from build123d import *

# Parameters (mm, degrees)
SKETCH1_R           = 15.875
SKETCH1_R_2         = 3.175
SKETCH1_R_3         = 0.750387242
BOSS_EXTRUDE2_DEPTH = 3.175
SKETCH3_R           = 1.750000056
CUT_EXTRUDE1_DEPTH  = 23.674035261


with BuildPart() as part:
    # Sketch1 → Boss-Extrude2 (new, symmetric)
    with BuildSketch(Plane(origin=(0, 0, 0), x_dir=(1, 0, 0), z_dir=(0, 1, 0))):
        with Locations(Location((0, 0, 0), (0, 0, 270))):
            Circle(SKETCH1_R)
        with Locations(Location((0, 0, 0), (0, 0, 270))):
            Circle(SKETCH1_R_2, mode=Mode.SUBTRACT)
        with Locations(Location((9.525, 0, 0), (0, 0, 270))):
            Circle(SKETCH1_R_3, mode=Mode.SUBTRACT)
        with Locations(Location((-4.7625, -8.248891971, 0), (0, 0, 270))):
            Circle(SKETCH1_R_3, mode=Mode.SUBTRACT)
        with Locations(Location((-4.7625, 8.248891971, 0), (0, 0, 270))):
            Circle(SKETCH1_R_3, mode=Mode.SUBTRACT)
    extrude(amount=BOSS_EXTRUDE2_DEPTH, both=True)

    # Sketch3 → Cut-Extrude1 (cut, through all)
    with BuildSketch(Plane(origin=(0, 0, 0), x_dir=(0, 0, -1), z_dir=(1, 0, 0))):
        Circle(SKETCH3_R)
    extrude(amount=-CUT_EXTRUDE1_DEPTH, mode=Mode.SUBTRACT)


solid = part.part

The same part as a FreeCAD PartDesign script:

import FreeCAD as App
import Part
import Sketcher
from FreeCAD import Vector
Q = App.Units.Quantity

doc = App.newDocument("Part")
body = doc.addObject("PartDesign::Body", "Body")

# Sketch on XZ plane
sketch1 = doc.addObject("Sketcher::SketchObject", "Sketch")
body.addObject(sketch1)
sketch1.AttachmentSupport = (doc.XZ_Plane, [""])
sketch1.MapMode = "FlatFace"
sketch1.addGeometry(Part.Circle(Vector(0, 0, 0), Vector(0, 0, 1), 15.9), False)
sketch1.addGeometry(Part.Circle(Vector(-4.8, -8.2, 0), Vector(0, 0, 1), 0.8), False)
sketch1.addGeometry(Part.Circle(Vector(0, 0, 0), Vector(0, 0, 1), 3.2), False)
sketch1.addGeometry(Part.Circle(Vector(-4.8, 8.2, 0), Vector(0, 0, 1), 0.8), False)
sketch1.addGeometry(Part.Circle(Vector(9.5, 0, 0), Vector(0, 0, 1), 0.8), False)
sketch1.addConstraint(Sketcher.Constraint("Coincident", 0, 3, -1, 1))
sketch1.addConstraint(Sketcher.Constraint("Coincident", 2, 3, -1, 1))
sketch1.addConstraint(Sketcher.Constraint("Equal", 1, 3))
sketch1.addConstraint(Sketcher.Constraint("Equal", 3, 4))
sketch1.addConstraint(Sketcher.Constraint("Symmetric", 1, 3, 3, 3, -1))
sketch1.addConstraint(Sketcher.Constraint("PointOnObject", 4, 3, -1))
sketch1.addConstraint(Sketcher.Constraint("Diameter", 0, Q("1.25 in")))
sketch1.addConstraint(Sketcher.Constraint("Diameter", 2, Q("0.25 in")))
sketch1.addConstraint(Sketcher.Constraint("DistanceX", 1, 3, -1, 1, Q("0.1875 in")))
sketch1.addConstraint(Sketcher.Constraint("DistanceX", -1, 1, 4, 3, Q("0.375 in")))
sketch1.addConstraint(Sketcher.Constraint("Diameter", 1, 1.500774))
sketch1.addConstraint(Sketcher.Constraint("DistanceY", 1, 3, -1, 1, 8.248892))
pad1 = doc.addObject("PartDesign::Pad", "Pad")
body.addObject(pad1)
pad1.Profile = sketch1
pad1.Length = Q("0.25 in")
pad1.Midplane = True

# Sketch on YZ plane
sketch2 = doc.addObject("Sketcher::SketchObject", "Sketch001")
body.addObject(sketch2)
sketch2.AttachmentSupport = (doc.YZ_Plane, [""])
sketch2.MapMode = "FlatFace"
sketch2.addGeometry(Part.Circle(Vector(0, 0, 0), Vector(0, 0, 1), 1.8), False)
sketch2.addConstraint(Sketcher.Constraint("Coincident", 0, 3, -1, 1))
sketch2.addConstraint(Sketcher.Constraint("Diameter", 0, 3.5))
pocket1 = doc.addObject("PartDesign::Pocket", "Pocket")
body.addObject(pocket1)
pocket1.Profile = sketch2
pocket1.Type = "ThroughAll"

doc.recompute()
